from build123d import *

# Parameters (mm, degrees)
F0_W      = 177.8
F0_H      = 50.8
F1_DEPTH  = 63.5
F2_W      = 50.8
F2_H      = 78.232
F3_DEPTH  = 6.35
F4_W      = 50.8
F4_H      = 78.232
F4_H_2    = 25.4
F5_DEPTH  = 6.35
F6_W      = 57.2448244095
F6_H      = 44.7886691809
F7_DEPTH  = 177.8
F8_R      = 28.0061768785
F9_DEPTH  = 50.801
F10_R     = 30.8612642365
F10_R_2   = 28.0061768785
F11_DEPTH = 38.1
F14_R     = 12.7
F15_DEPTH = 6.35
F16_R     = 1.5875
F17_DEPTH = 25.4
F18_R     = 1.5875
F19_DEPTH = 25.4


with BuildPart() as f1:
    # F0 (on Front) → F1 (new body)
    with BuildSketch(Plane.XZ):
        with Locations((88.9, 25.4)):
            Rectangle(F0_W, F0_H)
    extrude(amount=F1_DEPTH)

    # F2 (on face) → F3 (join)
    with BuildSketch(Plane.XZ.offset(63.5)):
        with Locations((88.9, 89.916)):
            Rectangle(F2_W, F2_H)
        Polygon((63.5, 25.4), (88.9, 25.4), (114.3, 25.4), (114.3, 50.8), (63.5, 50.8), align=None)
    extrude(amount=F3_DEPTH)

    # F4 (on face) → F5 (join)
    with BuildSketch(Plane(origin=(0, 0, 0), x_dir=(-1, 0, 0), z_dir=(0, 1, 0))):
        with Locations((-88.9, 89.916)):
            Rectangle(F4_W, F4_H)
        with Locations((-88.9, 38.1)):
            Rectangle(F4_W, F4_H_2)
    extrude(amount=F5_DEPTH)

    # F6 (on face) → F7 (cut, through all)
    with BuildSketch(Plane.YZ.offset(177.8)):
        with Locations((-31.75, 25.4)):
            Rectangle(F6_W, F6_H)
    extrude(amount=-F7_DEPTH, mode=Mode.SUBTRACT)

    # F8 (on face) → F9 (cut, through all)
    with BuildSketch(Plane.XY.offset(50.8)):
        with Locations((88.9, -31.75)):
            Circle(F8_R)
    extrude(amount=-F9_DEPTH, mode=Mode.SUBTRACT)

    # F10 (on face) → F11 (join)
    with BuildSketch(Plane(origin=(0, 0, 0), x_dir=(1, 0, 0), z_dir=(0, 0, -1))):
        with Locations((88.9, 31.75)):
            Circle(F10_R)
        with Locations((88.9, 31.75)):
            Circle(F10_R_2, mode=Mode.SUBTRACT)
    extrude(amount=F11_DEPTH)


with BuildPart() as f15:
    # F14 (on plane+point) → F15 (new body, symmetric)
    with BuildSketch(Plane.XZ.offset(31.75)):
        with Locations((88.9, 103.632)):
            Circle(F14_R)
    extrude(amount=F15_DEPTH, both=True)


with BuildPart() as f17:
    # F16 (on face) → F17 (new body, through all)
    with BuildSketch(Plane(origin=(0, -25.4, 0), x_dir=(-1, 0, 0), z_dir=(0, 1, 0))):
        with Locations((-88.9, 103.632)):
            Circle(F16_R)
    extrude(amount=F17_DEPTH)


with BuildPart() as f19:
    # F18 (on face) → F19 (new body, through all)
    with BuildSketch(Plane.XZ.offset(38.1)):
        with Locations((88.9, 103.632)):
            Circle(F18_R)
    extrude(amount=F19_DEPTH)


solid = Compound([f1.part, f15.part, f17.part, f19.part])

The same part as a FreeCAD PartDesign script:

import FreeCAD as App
import Part
import Sketcher
from FreeCAD import Vector
Q = App.Units.Quantity


def add_polygon(sketch, points):
    """Adds a closed chain of lines whose ends are joined by coincident constraints."""
    first, n = sketch.GeometryCount, len(points)
    for a, b in zip(points, points[1:] + points[:1]):
        sketch.addGeometry(Part.LineSegment(App.Vector(*a, 0), App.Vector(*b, 0)), False)
    for i in range(n):
        sketch.addConstraint(Sketcher.Constraint("Coincident", first + i, 2, first + (i + 1) % n, 1))

doc = App.newDocument("Part")
body = doc.addObject("PartDesign::Body", "Body")

# Sketch on XZ plane
sketch1 = doc.addObject("Sketcher::SketchObject", "Sketch")
body.addObject(sketch1)
sketch1.AttachmentSupport = (doc.XZ_Plane, [""])
sketch1.MapMode = "FlatFace"
add_polygon(sketch1, [(0, 51), (0, 0), (178, 0), (178, 51)])  # lines 0-3
sketch1.addConstraint([
    Sketcher.Constraint("Vertical", 0),
    Sketcher.Constraint("Horizontal", 1),
    Sketcher.Constraint("Vertical", 2),
    Sketcher.Constraint("Horizontal", 3),
    Sketcher.Constraint("Coincident", 0, 2, -1, 1),
    Sketcher.Constraint("DistanceX", 1, 1, 1, 2, Q("7 in")),
    Sketcher.Constraint("DistanceY", 0, 2, 0, 1, Q("2 in")),
])
pad1 = doc.addObject("PartDesign::Pad", "Pad")
body.addObject(pad1)
pad1.Profile = sketch1
pad1.Length = Q("2.5 in")

# Sketch on XZ plane
sketch2 = doc.addObject("Sketcher::SketchObject", "Sketch001")
body.addObject(sketch2)
sketch2.AttachmentSupport = (doc.XZ_Plane, [""])
sketch2.MapMode = "FlatFace"
sketch2.AttachmentOffset = App.Placement(Vector(0, 0, 2.5 * 25.4), App.Rotation())
add_polygon(sketch2, [(64, 129), (64, 25), (114, 25), (114, 129)])  # lines 0-3
sketch2.addConstraint([
    Sketcher.Constraint("Vertical", 0),
    Sketcher.Constraint("Horizontal", 1),
    Sketcher.Constraint("Vertical", 2),
    Sketcher.Constraint("Horizontal", 3),
    Sketcher.Constraint("DistanceX", 1, 1, 1, 2, Q("2 in")),
    Sketcher.Constraint("DistanceY", -1, 1, 0, 2, Q("1 in")),
    Sketcher.Constraint("DistanceY", 0, 2, 0, 1, Q("4.08 in")),
    Sketcher.Constraint("DistanceX", -1, 1, 0, 2, Q("2.5 in")),
])
pad2 = doc.addObject("PartDesign::Pad", "Pad001")
body.addObject(pad2)
pad2.Profile = sketch2
pad2.Length = Q("0.25 in")

# Sketch on XZ plane
sketch3 = doc.addObject("Sketcher::SketchObject", "Sketch002")
body.addObject(sketch3)
sketch3.AttachmentSupport = (doc.XZ_Plane, [""])
sketch3.MapMode = "FlatFace"
add_polygon(sketch3, [(114, 129), (114, 25), (64, 25), (64, 129)])  # lines 0-3
sketch3.addConstraint([
    Sketcher.Constraint("Vertical", 0),
    Sketcher.Constraint("Horizontal", 1),
    Sketcher.Constraint("Vertical", 2),
    Sketcher.Constraint("Horizontal", 3),
    Sketcher.Constraint("DistanceX", 1, 2, 1, 1, Q("2 in")),
    Sketcher.Constraint("DistanceY", -1, 1, 0, 2, Q("1 in")),
    Sketcher.Constraint("DistanceY", 0, 2, 0, 1, Q("4.08 in")),
    Sketcher.Constraint("DistanceX", -1, 1, 0, 2, Q("4.5 in")),
])
pad3 = doc.addObject("PartDesign::Pad", "Pad002")
body.addObject(pad3)
pad3.Profile = sketch3
pad3.Length = Q("0.25 in")
pad3.Reversed = True

# Sketch on YZ plane
sketch4 = doc.addObject("Sketcher::SketchObject", "Sketch003")
body.addObject(sketch4)
sketch4.AttachmentSupport = (doc.YZ_Plane, [""])
sketch4.MapMode = "FlatFace"
sketch4.AttachmentOffset = App.Placement(Vector(0, 0, 7 * 25.4), App.Rotation())
add_polygon(sketch4, [(-60, 48), (-60, 3), (-3, 3), (-3, 48)])  # lines 0-3
sketch4.addConstraint([
    Sketcher.Constraint("Vertical", 0),
    Sketcher.Constraint("Horizontal", 1),
    Sketcher.Constraint("Vertical", 2),
    Sketcher.Constraint("Horizontal", 3),
    Sketcher.Constraint("DistanceY", 0, 2, 0, 1, Q("44.788669 mm")),
    Sketcher.Constraint("DistanceX", 1, 1, 1, 2, Q("57.244824 mm")),
    Sketcher.Constraint("DistanceX", 0, 2, -1, 1, Q("60.372412 mm")),
    Sketcher.Constraint("DistanceY", -1, 1, 0, 2, Q("3.005665 mm")),
])
pocket1 = doc.addObject("PartDesign::Pocket", "Pocket")
body.addObject(pocket1)
pocket1.Profile = sketch4
pocket1.Type = "ThroughAll"

# Sketch on XY plane
sketch5 = doc.addObject("Sketcher::SketchObject", "Sketch004")
body.addObject(sketch5)
sketch5.AttachmentSupport = (doc.XY_Plane, [""])
sketch5.MapMode = "FlatFace"
sketch5.AttachmentOffset = App.Placement(Vector(0, 0, 2 * 25.4), App.Rotation())
sketch5.addGeometry(Part.Circle(Vector(89, -32, 0), Vector(0, 0, 1), 28), False)
sketch5.addConstraint([
    Sketcher.Constraint("DistanceX", -1, 1, 0, 3, Q("3.5 in")),
    Sketcher.Constraint("DistanceY", 0, 3, -1, 1, Q("1.25 in")),
    Sketcher.Constraint("Diameter", 0, Q("56.012354 mm")),
])
pocket2 = doc.addObject("PartDesign::Pocket", "Pocket001")
body.addObject(pocket2)
pocket2.Profile = sketch5
pocket2.Type = "ThroughAll"

# Sketch on XY plane
sketch6 = doc.addObject("Sketcher::SketchObject", "Sketch005")
body.addObject(sketch6)
sketch6.AttachmentSupport = (doc.XY_Plane, [""])
sketch6.MapMode = "FlatFace"
sketch6.addGeometry([
    Part.Circle(Vector(89, -32, 0), Vector(0, 0, 1), 31),
    Part.Circle(Vector(89, -32, 0), Vector(0, 0, 1), 28),
], False)
sketch6.addConstraint([
    Sketcher.Constraint("Coincident", 1, 3, 0, 3),
    Sketcher.Constraint("DistanceX", -1, 1, 0, 3, Q("3.5 in")),
    Sketcher.Constraint("DistanceY", 0, 3, -1, 1, Q("1.25 in")),
    Sketcher.Constraint("Diameter", 0, Q("61.722528 mm")),
    Sketcher.Constraint("Diameter", 1, Q("56.012354 mm")),
])
pad4 = doc.addObject("PartDesign::Pad", "Pad003")
body.addObject(pad4)
pad4.Profile = sketch6
pad4.Length = Q("1.5 in")
pad4.Reversed = True
body2 = doc.addObject("PartDesign::Body", "Body001")

# Sketch on XZ plane
sketch7 = doc.addObject("Sketcher::SketchObject", "Sketch006")
body2.addObject(sketch7)
sketch7.AttachmentSupport = (doc.getObject("XZ_Plane001"), [""])
sketch7.MapMode = "FlatFace"
sketch7.AttachmentOffset = App.Placement(Vector(0, 0, 1.25 * 25.4), App.Rotation())
sketch7.addGeometry(Part.Circle(Vector(89, 104, 0), Vector(0, 0, 1), 13), False)
sketch7.addConstraint([
    Sketcher.Constraint("Diameter", 0, Q("1 in")),
    Sketcher.Constraint("DistanceX", -1, 1, 0, 3, Q("3.5 in")),
    Sketcher.Constraint("DistanceY", -1, 1, 0, 3, Q("4.08 in")),
])
pad5 = doc.addObject("PartDesign::Pad", "Pad004")
body2.addObject(pad5)
pad5.Profile = sketch7
pad5.Length = Q("0.5 in")
pad5.Midplane = True
body3 = doc.addObject("PartDesign::Body", "Body002")

# Sketch on XZ plane
sketch8 = doc.addObject("Sketcher::SketchObject", "Sketch007")
body3.addObject(sketch8)
sketch8.AttachmentSupport = (doc.getObject("XZ_Plane002"), [""])
sketch8.MapMode = "FlatFace"
sketch8.AttachmentOffset = App.Placement(Vector(0, 0, 1 * 25.4), App.Rotation())
sketch8.addGeometry(Part.Circle(Vector(88.9, 103.6, 0), Vector(0, 0, 1), 1.6), False)
sketch8.addConstraint([
    Sketcher.Constraint("Diameter", 0, Q("0.125 in")),
    Sketcher.Constraint("DistanceX", -1, 1, 0, 3, Q("3.5 in")),
    Sketcher.Constraint("DistanceY", -1, 1, 0, 3, Q("4.08 in")),
])
pad6 = doc.addObject("PartDesign::Pad", "Pad005")
body3.addObject(pad6)
pad6.Profile = sketch8
pad6.Length = Q("1 in")
pad6.Reversed = True
body4 = doc.addObject("PartDesign::Body", "Body003")

# Sketch on XZ plane
sketch9 = doc.addObject("Sketcher::SketchObject", "Sketch008")
body4.addObject(sketch9)
sketch9.AttachmentSupport = (doc.getObject("XZ_Plane003"), [""])
sketch9.MapMode = "FlatFace"
sketch9.AttachmentOffset = App.Placement(Vector(0, 0, 1.5 * 25.4), App.Rotation())
sketch9.addGeometry(Part.Circle(Vector(88.9, 103.6, 0), Vector(0, 0, 1), 1.6), False)
sketch9.addConstraint([
    Sketcher.Constraint("Diameter", 0, Q("0.125 in")),
    Sketcher.Constraint("DistanceX", -1, 1, 0, 3, Q("3.5 in")),
    Sketcher.Constraint("DistanceY", -1, 1, 0, 3, Q("4.08 in")),
])
pad7 = doc.addObject("PartDesign::Pad", "Pad006")
body4.addObject(pad7)
pad7.Profile = sketch9
pad7.Length = Q("1 in")

doc.recompute()
